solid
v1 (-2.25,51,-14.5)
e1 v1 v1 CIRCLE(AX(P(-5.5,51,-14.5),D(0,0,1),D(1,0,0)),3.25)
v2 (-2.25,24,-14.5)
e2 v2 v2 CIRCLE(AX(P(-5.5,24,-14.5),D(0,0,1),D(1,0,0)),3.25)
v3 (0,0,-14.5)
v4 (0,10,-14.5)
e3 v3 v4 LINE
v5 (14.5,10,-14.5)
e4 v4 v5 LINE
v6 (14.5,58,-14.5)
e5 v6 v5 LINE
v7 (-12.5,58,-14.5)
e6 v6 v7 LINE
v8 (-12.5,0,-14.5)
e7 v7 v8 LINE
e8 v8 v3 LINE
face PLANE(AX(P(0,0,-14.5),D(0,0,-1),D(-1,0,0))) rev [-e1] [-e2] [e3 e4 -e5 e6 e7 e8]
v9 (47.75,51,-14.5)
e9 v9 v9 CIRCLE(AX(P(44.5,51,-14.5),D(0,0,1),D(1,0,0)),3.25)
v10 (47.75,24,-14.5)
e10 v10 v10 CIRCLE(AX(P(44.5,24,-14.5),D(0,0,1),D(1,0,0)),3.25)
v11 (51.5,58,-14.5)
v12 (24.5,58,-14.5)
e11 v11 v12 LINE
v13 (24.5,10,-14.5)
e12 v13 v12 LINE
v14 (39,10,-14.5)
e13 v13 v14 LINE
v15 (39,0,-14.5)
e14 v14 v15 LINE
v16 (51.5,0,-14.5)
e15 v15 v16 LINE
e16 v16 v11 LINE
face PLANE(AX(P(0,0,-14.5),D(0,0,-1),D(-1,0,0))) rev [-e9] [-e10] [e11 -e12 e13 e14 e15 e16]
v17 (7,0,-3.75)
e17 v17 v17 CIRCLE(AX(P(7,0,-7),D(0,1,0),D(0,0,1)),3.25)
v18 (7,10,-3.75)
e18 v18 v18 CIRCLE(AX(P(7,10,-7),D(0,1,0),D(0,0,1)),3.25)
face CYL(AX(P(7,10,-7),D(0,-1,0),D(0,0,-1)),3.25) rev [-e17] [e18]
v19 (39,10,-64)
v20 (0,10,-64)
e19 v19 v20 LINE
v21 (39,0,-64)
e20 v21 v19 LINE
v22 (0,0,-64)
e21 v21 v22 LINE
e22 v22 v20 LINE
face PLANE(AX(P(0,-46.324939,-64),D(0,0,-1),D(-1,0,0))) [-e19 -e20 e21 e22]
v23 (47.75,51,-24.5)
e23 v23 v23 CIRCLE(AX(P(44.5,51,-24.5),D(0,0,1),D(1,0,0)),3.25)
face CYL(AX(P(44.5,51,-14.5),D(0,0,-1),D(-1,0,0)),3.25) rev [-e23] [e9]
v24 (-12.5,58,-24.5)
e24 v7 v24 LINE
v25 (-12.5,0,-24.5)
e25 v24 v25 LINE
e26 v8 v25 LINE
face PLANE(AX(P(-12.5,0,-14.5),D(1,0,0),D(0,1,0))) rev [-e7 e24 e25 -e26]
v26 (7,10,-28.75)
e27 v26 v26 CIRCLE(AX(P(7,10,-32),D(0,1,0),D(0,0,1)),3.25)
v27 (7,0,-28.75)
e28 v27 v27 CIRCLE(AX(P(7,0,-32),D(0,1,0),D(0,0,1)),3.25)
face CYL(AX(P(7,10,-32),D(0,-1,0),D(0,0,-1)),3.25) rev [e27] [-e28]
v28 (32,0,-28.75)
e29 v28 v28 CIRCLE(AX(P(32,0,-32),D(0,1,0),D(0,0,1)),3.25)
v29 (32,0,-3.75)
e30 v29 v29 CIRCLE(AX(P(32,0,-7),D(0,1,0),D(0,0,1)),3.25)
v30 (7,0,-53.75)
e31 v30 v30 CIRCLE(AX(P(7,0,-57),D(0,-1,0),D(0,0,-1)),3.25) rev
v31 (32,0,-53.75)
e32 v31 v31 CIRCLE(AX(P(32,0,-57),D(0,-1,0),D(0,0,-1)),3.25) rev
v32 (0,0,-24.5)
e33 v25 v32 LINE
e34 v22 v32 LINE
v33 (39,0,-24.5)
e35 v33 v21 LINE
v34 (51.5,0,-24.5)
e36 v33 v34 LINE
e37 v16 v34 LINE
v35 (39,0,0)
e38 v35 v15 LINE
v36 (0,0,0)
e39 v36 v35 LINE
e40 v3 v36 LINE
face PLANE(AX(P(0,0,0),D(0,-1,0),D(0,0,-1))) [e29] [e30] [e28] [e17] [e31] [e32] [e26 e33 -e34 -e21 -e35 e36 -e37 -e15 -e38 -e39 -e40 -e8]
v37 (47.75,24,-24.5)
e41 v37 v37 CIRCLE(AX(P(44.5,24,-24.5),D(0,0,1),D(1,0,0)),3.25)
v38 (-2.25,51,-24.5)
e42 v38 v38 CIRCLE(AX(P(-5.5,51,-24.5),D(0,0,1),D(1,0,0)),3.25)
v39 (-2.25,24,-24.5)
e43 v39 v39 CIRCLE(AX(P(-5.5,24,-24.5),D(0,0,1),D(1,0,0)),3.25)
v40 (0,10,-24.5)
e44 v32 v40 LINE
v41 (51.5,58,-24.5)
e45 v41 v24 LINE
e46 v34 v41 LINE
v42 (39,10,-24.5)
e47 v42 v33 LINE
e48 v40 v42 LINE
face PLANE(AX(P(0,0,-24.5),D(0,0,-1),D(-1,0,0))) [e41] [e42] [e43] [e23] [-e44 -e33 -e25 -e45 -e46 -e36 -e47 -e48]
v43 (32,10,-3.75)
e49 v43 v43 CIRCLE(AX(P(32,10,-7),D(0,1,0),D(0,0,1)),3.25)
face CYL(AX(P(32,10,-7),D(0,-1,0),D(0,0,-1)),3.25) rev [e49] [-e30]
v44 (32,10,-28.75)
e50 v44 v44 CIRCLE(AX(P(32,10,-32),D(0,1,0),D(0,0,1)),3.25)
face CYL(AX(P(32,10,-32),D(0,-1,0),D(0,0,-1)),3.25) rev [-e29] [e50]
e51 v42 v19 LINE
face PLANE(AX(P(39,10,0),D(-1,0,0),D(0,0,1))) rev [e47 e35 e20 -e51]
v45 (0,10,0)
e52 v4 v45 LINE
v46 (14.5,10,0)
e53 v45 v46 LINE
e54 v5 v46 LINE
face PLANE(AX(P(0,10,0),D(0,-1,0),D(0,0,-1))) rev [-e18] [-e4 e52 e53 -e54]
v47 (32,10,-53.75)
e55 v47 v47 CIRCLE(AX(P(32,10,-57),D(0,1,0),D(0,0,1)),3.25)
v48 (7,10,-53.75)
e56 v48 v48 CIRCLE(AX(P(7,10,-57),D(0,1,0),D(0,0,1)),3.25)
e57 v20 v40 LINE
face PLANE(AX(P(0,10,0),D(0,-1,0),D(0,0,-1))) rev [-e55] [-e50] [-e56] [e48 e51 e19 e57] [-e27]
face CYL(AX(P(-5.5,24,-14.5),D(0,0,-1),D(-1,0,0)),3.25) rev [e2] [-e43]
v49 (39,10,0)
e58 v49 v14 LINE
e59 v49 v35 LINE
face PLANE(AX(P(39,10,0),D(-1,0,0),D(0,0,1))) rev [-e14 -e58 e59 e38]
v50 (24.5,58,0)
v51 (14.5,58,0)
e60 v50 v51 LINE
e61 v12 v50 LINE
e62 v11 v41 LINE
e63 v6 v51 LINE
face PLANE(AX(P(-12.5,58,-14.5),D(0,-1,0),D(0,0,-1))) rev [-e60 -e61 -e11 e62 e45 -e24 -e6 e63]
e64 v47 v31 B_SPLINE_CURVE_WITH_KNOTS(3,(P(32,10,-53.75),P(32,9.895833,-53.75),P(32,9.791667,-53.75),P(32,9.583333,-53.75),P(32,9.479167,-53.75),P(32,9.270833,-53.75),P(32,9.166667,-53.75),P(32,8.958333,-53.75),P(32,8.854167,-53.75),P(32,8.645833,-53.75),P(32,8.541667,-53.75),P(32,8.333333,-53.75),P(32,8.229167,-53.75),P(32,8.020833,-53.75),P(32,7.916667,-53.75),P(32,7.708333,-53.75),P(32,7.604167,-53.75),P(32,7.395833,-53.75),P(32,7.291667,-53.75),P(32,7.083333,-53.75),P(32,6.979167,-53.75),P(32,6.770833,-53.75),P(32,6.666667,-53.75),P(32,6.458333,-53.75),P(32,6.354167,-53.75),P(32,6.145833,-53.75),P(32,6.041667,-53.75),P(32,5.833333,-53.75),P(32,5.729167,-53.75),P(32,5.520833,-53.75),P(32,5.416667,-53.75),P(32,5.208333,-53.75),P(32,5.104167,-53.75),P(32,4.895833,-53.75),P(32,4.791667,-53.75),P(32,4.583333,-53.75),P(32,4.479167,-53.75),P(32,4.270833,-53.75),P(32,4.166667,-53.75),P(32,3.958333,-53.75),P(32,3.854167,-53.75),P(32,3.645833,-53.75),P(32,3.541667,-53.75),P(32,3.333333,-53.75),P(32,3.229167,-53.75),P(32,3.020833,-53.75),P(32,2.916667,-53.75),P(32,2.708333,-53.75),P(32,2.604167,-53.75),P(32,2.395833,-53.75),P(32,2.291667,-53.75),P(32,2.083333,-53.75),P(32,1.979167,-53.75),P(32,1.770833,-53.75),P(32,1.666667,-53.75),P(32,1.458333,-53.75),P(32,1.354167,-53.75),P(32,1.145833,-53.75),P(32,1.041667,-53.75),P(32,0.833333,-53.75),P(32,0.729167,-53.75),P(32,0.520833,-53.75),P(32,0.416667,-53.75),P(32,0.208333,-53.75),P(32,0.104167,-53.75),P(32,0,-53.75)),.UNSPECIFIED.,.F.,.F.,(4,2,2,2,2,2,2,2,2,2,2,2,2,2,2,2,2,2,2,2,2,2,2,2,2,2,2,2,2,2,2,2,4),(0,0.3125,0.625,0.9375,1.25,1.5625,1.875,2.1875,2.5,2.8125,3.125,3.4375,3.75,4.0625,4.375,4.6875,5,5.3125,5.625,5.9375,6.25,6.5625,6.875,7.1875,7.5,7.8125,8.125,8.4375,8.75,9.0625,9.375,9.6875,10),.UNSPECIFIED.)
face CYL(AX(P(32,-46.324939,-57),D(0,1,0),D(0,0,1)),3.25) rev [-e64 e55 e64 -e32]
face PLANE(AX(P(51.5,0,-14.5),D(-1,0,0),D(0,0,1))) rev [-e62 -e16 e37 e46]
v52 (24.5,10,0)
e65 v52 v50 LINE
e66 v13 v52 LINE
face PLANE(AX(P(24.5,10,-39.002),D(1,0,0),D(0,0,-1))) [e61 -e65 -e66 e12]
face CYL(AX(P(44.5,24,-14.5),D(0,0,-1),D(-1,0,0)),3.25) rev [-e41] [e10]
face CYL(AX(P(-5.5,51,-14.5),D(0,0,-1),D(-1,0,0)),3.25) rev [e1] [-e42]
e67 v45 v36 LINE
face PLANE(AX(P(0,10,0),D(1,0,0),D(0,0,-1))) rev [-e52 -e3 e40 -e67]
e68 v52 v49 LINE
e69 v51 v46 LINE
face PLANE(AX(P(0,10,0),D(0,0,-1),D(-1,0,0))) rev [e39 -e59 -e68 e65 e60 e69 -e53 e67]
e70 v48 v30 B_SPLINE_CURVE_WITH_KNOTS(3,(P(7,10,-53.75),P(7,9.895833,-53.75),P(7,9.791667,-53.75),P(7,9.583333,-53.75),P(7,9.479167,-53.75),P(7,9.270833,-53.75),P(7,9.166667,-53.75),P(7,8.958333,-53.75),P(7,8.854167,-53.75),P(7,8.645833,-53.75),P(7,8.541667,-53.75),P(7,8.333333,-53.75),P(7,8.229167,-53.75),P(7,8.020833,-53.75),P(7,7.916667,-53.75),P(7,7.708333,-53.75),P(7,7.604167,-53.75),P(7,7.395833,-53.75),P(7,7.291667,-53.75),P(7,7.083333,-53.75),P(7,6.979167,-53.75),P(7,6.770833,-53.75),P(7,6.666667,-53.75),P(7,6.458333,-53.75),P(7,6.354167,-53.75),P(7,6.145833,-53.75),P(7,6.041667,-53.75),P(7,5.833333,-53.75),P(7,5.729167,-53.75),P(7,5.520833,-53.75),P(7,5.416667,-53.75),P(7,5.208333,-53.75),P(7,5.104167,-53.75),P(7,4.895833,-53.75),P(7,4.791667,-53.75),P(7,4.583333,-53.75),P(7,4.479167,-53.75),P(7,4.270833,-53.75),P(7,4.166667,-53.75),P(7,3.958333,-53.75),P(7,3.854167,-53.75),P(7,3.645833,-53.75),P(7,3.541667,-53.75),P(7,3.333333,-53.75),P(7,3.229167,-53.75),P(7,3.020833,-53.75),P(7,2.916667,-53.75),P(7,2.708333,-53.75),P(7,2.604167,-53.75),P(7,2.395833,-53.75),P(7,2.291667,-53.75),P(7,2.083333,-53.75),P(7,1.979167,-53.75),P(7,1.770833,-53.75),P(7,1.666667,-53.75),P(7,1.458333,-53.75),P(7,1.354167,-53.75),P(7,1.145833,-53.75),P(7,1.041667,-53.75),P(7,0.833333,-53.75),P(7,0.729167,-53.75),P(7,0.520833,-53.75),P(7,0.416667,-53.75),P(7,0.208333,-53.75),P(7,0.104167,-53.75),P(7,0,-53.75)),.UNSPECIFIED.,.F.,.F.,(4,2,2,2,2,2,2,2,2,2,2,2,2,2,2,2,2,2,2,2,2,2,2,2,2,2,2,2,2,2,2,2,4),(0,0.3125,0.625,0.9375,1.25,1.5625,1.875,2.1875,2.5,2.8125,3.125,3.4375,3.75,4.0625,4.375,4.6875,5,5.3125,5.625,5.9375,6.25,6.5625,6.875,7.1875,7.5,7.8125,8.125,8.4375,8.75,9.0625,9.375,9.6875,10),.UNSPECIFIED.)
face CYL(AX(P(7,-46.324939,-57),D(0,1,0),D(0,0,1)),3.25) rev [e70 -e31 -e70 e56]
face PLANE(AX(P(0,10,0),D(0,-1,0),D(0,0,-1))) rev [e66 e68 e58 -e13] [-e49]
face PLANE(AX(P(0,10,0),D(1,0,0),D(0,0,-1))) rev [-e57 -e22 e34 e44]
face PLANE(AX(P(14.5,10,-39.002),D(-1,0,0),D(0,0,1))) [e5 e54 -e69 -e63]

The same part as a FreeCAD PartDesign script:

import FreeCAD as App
import Part
import Sketcher

V = App.Vector
Q = App.Units.Quantity

doc = App.newDocument("Part")
body = doc.addObject("PartDesign::Body", "Body")

# Sketch on XZ plane
sketch1 = body.newObject("Sketcher::SketchObject", "Sketch")
sketch1.AttachmentSupport = (doc.getObject("XZ_Plane"), [""])
sketch1.MapMode = "FlatFace"
sketch1.addGeometry([
    Part.LineSegment(V(0, -39, 0), V(0, 0, 0)),  # 0
    Part.LineSegment(V(0, 0, 0), V(39, 0, 0)),  # 1
    Part.LineSegment(V(39, 0, 0), V(39, -39, 0)),  # 2
    Part.LineSegment(V(39, -39, 0), V(0, -39, 0)),  # 3
    Part.Circle(V(7, -7, 0), V(0, 0, 1), 3.2),  # 4
    Part.Circle(V(32, -7, 0), V(0, 0, 1), 3.2),  # 5
    Part.Circle(V(7, -32, 0), V(0, 0, 1), 3.2),  # 6
    Part.Circle(V(32, -32, 0), V(0, 0, 1), 3.2),  # 7
], False)
sketch1.addConstraint([
    Sketcher.Constraint("Coincident", 0, 2, 1, 1),
    Sketcher.Constraint("Coincident", 1, 2, 2, 1),
    Sketcher.Constraint("Coincident", 2, 2, 3, 1),
    Sketcher.Constraint("Coincident", 3, 2, 0, 1),
    Sketcher.Constraint("Vertical", 0),
    Sketcher.Constraint("Horizontal", 1),
    Sketcher.Constraint("Vertical", 2),
    Sketcher.Constraint("Horizontal", 3),
    Sketcher.Constraint("Coincident", 0, 2, -1, 1),
    Sketcher.Constraint("Equal", 4, 5),
    Sketcher.Constraint("Equal", 5, 6),
    Sketcher.Constraint("Equal", 6, 7),
    Sketcher.Constraint("Horizontal", 4, 3, 5, 3),
    Sketcher.Constraint("Horizontal", 6, 3, 7, 3),
    Sketcher.Constraint("Vertical", 4, 3, 6, 3),
    Sketcher.Constraint("Vertical", 5, 3, 7, 3),
    Sketcher.Constraint("Equal", 3, 0),
    Sketcher.Constraint("Diameter", 4, Q("6.5 mm")),
    Sketcher.Constraint("DistanceX", 1, 1, 1, 2, Q("39 mm")),
    Sketcher.Constraint("DistanceX", -1, 1, 4, 3, Q("7 mm")),
    Sketcher.Constraint("DistanceY", 4, 3, -1, 1, Q("7 mm")),
    Sketcher.Constraint("DistanceX", -1, 1, 5, 3, Q("32 mm")),
    Sketcher.Constraint("DistanceY", 6, 3, -1, 1, Q("32 mm")),
])
pad1 = body.newObject("PartDesign::Pad", "Pad")
pad1.Profile = sketch1
pad1.Length = 10
pad1.Reversed = True

# Sketch on XY plane
sketch2 = body.newObject("Sketcher::SketchObject", "Sketch001")
sketch2.AttachmentSupport = (doc.getObject("XY_Plane"), [""])
sketch2.MapMode = "FlatFace"
sketch2.AttachmentOffset = App.Placement(V(0, 0, -19.5), App.Rotation())
sketch2.addGeometry([
    Part.LineSegment(V(-12.5, 58, 0), V(-12.5, 0, 0)),  # 0
    Part.LineSegment(V(-12.5, 0, 0), V(51.5, 0, 0)),  # 1
    Part.LineSegment(V(51.5, 0, 0), V(51.5, 58, 0)),  # 2
    Part.LineSegment(V(51.5, 58, 0), V(-12.5, 58, 0)),  # 3
    Part.Circle(V(-5.5, 24, 0), V(0, 0, 1), 3.2),  # 4
    Part.Circle(V(44.5, 24, 0), V(0, 0, 1), 3.2),  # 5
    Part.Circle(V(-5.5, 51, 0), V(0, 0, 1), 3.2),  # 6
    Part.Circle(V(44.5, 51, 0), V(0, 0, 1), 3.2),  # 7
], False)
sketch2.addConstraint([
    Sketcher.Constraint("Coincident", 0, 2, 1, 1),
    Sketcher.Constraint("Coincident", 1, 2, 2, 1),
    Sketcher.Constraint("Coincident", 2, 2, 3, 1),
    Sketcher.Constraint("Coincident", 3, 2, 0, 1),
    Sketcher.Constraint("Vertical", 0),
    Sketcher.Constraint("Horizontal", 1),
    Sketcher.Constraint("Vertical", 2),
    Sketcher.Constraint("Horizontal", 3),
    Sketcher.Constraint("Equal", 4, 5),
    Sketcher.Constraint("Equal", 5, 6),
    Sketcher.Constraint("Equal", 6, 7),
    Sketcher.Constraint("PointOnObject", 0, 2, -1),
    Sketcher.Constraint("Horizontal", 4, 3, 5, 3),
    Sketcher.Constraint("Horizontal", 6, 3, 7, 3),
    Sketcher.Constraint("Vertical", 4, 3, 6, 3),
    Sketcher.Constraint("Vertical", 5, 3, 7, 3),
    Sketcher.Constraint("Diameter", 4, Q("6.5 mm")),
    Sketcher.Constraint("DistanceX", 1, 1, 1, 2, Q("64 mm")),
    Sketcher.Constraint("DistanceY", 0, 2, 0, 1, Q("58 mm")),
    Sketcher.Constraint("DistanceY", -1, 1, 4, 3, Q("24 mm")),
    Sketcher.Constraint("DistanceY", -1, 1, 6, 3, Q("51 mm")),
    Sketcher.Constraint("DistanceX", 4, 3, 5, 3, Q("50 mm")),
    Sketcher.Constraint("DistanceX", 0, 2, 4, 3, Q("7 mm")),
    Sketcher.Constraint("DistanceX", 4, 3, -1, 1, Q("5.5 mm")),
])
pad2 = body.newObject("PartDesign::Pad", "Pad001")
pad2.Profile = sketch2
pad2.Length = 10
pad2.Midplane = True

# Sketch on XY plane
sketch3 = body.newObject("Sketcher::SketchObject", "Sketch002")
sketch3.AttachmentSupport = (doc.getObject("XY_Plane"), [""])
sketch3.MapMode = "FlatFace"
sketch3.addGeometry([
    Part.LineSegment(V(14, 58, 0), V(14, 10, 0)),
    Part.LineSegment(V(14, 10, 0), V(24, 10, 0)),
    Part.LineSegment(V(24, 10, 0), V(24, 58, 0)),
    Part.LineSegment(V(24, 58, 0), V(14, 58, 0)),
], False)
sketch3.addConstraint([
    Sketcher.Constraint("Coincident", 0, 2, 1, 1),
    Sketcher.Constraint("Coincident", 1, 2, 2, 1),
    Sketcher.Constraint("Coincident", 2, 2, 3, 1),
    Sketcher.Constraint("Coincident", 3, 2, 0, 1),
    Sketcher.Constraint("Vertical", 0),
    Sketcher.Constraint("Horizontal", 1),
    Sketcher.Constraint("Vertical", 2),
    Sketcher.Constraint("Horizontal", 3),
    Sketcher.Constraint("DistanceX", 1, 1, 1, 2, Q("10 mm")),
    Sketcher.Constraint("DistanceY", 0, 2, 0, 1, Q("48 mm")),
    Sketcher.Constraint("DistanceY", -1, 1, 0, 2, Q("10 mm")),
    Sketcher.Constraint("DistanceX", -1, 1, 0, 2, Q("14.5 mm")),
])
pad3 = body.newObject("PartDesign::Pad", "Pad002")
pad3.Profile = sketch3
pad3.Type = "UpToFirst"
pad3.Reversed = True

# Sketch on XZ plane
sketch4 = body.newObject("Sketcher::SketchObject", "Sketch003")
sketch4.AttachmentSupport = (doc.getObject("XZ_Plane"), [""])
sketch4.MapMode = "FlatFace"
sketch4.AttachmentOffset = App.Placement(V(0, 0, -10), App.Rotation())
sketch4.addGeometry([
    Part.LineSegment(V(0, -64, 0), V(0, -39, 0)),  # 0
    Part.LineSegment(V(0, -39, 0), V(39, -39, 0)),  # 1
    Part.LineSegment(V(39, -39, 0), V(39, -64, 0)),  # 2
    Part.LineSegment(V(39, -64, 0), V(0, -64, 0)),  # 3
    Part.Circle(V(7, -57, 0), V(0, 0, 1), 3.2),  # 4
    Part.Circle(V(32, -57, 0), V(0, 0, 1), 3.2),  # 5
], False)
sketch4.addConstraint([
    Sketcher.Constraint("Coincident", 0, 2, 1, 1),
    Sketcher.Constraint("Coincident", 1, 2, 2, 1),
    Sketcher.Constraint("Coincident", 2, 2, 3, 1),
    Sketcher.Constraint("Coincident", 3, 2, 0, 1),
    Sketcher.Constraint("Vertical", 0),
    Sketcher.Constraint("Horizontal", 1),
    Sketcher.Constraint("Vertical", 2),
    Sketcher.Constraint("Horizontal", 3),
    Sketcher.Constraint("Equal", 4, 5),
    Sketcher.Constraint("PointOnObject", 0, 2, -2),
    Sketcher.Constraint("Horizontal", 4, 3, 5, 3),
    Sketcher.Constraint("Diameter", 4, Q("6.5 mm")),
    Sketcher.Constraint("DistanceX", 1, 1, 1, 2, Q("39 mm")),
    Sketcher.Constraint("DistanceY", 0, 1, 0, 2, Q("25 mm")),
    Sketcher.Constraint("DistanceX", -1, 1, 4, 3, Q("7 mm")),
    Sketcher.Constraint("DistanceY", 4, 3, -1, 1, Q("57 mm")),
    Sketcher.Constraint("DistanceX", -1, 1, 5, 3, Q("32 mm")),
    Sketcher.Constraint("DistanceY", 0, 2, -1, 1, Q("39 mm")),
])
pad4 = body.newObject("PartDesign::Pad", "Pad003")
pad4.Profile = sketch4
pad4.Length = 10

doc.recompute()
